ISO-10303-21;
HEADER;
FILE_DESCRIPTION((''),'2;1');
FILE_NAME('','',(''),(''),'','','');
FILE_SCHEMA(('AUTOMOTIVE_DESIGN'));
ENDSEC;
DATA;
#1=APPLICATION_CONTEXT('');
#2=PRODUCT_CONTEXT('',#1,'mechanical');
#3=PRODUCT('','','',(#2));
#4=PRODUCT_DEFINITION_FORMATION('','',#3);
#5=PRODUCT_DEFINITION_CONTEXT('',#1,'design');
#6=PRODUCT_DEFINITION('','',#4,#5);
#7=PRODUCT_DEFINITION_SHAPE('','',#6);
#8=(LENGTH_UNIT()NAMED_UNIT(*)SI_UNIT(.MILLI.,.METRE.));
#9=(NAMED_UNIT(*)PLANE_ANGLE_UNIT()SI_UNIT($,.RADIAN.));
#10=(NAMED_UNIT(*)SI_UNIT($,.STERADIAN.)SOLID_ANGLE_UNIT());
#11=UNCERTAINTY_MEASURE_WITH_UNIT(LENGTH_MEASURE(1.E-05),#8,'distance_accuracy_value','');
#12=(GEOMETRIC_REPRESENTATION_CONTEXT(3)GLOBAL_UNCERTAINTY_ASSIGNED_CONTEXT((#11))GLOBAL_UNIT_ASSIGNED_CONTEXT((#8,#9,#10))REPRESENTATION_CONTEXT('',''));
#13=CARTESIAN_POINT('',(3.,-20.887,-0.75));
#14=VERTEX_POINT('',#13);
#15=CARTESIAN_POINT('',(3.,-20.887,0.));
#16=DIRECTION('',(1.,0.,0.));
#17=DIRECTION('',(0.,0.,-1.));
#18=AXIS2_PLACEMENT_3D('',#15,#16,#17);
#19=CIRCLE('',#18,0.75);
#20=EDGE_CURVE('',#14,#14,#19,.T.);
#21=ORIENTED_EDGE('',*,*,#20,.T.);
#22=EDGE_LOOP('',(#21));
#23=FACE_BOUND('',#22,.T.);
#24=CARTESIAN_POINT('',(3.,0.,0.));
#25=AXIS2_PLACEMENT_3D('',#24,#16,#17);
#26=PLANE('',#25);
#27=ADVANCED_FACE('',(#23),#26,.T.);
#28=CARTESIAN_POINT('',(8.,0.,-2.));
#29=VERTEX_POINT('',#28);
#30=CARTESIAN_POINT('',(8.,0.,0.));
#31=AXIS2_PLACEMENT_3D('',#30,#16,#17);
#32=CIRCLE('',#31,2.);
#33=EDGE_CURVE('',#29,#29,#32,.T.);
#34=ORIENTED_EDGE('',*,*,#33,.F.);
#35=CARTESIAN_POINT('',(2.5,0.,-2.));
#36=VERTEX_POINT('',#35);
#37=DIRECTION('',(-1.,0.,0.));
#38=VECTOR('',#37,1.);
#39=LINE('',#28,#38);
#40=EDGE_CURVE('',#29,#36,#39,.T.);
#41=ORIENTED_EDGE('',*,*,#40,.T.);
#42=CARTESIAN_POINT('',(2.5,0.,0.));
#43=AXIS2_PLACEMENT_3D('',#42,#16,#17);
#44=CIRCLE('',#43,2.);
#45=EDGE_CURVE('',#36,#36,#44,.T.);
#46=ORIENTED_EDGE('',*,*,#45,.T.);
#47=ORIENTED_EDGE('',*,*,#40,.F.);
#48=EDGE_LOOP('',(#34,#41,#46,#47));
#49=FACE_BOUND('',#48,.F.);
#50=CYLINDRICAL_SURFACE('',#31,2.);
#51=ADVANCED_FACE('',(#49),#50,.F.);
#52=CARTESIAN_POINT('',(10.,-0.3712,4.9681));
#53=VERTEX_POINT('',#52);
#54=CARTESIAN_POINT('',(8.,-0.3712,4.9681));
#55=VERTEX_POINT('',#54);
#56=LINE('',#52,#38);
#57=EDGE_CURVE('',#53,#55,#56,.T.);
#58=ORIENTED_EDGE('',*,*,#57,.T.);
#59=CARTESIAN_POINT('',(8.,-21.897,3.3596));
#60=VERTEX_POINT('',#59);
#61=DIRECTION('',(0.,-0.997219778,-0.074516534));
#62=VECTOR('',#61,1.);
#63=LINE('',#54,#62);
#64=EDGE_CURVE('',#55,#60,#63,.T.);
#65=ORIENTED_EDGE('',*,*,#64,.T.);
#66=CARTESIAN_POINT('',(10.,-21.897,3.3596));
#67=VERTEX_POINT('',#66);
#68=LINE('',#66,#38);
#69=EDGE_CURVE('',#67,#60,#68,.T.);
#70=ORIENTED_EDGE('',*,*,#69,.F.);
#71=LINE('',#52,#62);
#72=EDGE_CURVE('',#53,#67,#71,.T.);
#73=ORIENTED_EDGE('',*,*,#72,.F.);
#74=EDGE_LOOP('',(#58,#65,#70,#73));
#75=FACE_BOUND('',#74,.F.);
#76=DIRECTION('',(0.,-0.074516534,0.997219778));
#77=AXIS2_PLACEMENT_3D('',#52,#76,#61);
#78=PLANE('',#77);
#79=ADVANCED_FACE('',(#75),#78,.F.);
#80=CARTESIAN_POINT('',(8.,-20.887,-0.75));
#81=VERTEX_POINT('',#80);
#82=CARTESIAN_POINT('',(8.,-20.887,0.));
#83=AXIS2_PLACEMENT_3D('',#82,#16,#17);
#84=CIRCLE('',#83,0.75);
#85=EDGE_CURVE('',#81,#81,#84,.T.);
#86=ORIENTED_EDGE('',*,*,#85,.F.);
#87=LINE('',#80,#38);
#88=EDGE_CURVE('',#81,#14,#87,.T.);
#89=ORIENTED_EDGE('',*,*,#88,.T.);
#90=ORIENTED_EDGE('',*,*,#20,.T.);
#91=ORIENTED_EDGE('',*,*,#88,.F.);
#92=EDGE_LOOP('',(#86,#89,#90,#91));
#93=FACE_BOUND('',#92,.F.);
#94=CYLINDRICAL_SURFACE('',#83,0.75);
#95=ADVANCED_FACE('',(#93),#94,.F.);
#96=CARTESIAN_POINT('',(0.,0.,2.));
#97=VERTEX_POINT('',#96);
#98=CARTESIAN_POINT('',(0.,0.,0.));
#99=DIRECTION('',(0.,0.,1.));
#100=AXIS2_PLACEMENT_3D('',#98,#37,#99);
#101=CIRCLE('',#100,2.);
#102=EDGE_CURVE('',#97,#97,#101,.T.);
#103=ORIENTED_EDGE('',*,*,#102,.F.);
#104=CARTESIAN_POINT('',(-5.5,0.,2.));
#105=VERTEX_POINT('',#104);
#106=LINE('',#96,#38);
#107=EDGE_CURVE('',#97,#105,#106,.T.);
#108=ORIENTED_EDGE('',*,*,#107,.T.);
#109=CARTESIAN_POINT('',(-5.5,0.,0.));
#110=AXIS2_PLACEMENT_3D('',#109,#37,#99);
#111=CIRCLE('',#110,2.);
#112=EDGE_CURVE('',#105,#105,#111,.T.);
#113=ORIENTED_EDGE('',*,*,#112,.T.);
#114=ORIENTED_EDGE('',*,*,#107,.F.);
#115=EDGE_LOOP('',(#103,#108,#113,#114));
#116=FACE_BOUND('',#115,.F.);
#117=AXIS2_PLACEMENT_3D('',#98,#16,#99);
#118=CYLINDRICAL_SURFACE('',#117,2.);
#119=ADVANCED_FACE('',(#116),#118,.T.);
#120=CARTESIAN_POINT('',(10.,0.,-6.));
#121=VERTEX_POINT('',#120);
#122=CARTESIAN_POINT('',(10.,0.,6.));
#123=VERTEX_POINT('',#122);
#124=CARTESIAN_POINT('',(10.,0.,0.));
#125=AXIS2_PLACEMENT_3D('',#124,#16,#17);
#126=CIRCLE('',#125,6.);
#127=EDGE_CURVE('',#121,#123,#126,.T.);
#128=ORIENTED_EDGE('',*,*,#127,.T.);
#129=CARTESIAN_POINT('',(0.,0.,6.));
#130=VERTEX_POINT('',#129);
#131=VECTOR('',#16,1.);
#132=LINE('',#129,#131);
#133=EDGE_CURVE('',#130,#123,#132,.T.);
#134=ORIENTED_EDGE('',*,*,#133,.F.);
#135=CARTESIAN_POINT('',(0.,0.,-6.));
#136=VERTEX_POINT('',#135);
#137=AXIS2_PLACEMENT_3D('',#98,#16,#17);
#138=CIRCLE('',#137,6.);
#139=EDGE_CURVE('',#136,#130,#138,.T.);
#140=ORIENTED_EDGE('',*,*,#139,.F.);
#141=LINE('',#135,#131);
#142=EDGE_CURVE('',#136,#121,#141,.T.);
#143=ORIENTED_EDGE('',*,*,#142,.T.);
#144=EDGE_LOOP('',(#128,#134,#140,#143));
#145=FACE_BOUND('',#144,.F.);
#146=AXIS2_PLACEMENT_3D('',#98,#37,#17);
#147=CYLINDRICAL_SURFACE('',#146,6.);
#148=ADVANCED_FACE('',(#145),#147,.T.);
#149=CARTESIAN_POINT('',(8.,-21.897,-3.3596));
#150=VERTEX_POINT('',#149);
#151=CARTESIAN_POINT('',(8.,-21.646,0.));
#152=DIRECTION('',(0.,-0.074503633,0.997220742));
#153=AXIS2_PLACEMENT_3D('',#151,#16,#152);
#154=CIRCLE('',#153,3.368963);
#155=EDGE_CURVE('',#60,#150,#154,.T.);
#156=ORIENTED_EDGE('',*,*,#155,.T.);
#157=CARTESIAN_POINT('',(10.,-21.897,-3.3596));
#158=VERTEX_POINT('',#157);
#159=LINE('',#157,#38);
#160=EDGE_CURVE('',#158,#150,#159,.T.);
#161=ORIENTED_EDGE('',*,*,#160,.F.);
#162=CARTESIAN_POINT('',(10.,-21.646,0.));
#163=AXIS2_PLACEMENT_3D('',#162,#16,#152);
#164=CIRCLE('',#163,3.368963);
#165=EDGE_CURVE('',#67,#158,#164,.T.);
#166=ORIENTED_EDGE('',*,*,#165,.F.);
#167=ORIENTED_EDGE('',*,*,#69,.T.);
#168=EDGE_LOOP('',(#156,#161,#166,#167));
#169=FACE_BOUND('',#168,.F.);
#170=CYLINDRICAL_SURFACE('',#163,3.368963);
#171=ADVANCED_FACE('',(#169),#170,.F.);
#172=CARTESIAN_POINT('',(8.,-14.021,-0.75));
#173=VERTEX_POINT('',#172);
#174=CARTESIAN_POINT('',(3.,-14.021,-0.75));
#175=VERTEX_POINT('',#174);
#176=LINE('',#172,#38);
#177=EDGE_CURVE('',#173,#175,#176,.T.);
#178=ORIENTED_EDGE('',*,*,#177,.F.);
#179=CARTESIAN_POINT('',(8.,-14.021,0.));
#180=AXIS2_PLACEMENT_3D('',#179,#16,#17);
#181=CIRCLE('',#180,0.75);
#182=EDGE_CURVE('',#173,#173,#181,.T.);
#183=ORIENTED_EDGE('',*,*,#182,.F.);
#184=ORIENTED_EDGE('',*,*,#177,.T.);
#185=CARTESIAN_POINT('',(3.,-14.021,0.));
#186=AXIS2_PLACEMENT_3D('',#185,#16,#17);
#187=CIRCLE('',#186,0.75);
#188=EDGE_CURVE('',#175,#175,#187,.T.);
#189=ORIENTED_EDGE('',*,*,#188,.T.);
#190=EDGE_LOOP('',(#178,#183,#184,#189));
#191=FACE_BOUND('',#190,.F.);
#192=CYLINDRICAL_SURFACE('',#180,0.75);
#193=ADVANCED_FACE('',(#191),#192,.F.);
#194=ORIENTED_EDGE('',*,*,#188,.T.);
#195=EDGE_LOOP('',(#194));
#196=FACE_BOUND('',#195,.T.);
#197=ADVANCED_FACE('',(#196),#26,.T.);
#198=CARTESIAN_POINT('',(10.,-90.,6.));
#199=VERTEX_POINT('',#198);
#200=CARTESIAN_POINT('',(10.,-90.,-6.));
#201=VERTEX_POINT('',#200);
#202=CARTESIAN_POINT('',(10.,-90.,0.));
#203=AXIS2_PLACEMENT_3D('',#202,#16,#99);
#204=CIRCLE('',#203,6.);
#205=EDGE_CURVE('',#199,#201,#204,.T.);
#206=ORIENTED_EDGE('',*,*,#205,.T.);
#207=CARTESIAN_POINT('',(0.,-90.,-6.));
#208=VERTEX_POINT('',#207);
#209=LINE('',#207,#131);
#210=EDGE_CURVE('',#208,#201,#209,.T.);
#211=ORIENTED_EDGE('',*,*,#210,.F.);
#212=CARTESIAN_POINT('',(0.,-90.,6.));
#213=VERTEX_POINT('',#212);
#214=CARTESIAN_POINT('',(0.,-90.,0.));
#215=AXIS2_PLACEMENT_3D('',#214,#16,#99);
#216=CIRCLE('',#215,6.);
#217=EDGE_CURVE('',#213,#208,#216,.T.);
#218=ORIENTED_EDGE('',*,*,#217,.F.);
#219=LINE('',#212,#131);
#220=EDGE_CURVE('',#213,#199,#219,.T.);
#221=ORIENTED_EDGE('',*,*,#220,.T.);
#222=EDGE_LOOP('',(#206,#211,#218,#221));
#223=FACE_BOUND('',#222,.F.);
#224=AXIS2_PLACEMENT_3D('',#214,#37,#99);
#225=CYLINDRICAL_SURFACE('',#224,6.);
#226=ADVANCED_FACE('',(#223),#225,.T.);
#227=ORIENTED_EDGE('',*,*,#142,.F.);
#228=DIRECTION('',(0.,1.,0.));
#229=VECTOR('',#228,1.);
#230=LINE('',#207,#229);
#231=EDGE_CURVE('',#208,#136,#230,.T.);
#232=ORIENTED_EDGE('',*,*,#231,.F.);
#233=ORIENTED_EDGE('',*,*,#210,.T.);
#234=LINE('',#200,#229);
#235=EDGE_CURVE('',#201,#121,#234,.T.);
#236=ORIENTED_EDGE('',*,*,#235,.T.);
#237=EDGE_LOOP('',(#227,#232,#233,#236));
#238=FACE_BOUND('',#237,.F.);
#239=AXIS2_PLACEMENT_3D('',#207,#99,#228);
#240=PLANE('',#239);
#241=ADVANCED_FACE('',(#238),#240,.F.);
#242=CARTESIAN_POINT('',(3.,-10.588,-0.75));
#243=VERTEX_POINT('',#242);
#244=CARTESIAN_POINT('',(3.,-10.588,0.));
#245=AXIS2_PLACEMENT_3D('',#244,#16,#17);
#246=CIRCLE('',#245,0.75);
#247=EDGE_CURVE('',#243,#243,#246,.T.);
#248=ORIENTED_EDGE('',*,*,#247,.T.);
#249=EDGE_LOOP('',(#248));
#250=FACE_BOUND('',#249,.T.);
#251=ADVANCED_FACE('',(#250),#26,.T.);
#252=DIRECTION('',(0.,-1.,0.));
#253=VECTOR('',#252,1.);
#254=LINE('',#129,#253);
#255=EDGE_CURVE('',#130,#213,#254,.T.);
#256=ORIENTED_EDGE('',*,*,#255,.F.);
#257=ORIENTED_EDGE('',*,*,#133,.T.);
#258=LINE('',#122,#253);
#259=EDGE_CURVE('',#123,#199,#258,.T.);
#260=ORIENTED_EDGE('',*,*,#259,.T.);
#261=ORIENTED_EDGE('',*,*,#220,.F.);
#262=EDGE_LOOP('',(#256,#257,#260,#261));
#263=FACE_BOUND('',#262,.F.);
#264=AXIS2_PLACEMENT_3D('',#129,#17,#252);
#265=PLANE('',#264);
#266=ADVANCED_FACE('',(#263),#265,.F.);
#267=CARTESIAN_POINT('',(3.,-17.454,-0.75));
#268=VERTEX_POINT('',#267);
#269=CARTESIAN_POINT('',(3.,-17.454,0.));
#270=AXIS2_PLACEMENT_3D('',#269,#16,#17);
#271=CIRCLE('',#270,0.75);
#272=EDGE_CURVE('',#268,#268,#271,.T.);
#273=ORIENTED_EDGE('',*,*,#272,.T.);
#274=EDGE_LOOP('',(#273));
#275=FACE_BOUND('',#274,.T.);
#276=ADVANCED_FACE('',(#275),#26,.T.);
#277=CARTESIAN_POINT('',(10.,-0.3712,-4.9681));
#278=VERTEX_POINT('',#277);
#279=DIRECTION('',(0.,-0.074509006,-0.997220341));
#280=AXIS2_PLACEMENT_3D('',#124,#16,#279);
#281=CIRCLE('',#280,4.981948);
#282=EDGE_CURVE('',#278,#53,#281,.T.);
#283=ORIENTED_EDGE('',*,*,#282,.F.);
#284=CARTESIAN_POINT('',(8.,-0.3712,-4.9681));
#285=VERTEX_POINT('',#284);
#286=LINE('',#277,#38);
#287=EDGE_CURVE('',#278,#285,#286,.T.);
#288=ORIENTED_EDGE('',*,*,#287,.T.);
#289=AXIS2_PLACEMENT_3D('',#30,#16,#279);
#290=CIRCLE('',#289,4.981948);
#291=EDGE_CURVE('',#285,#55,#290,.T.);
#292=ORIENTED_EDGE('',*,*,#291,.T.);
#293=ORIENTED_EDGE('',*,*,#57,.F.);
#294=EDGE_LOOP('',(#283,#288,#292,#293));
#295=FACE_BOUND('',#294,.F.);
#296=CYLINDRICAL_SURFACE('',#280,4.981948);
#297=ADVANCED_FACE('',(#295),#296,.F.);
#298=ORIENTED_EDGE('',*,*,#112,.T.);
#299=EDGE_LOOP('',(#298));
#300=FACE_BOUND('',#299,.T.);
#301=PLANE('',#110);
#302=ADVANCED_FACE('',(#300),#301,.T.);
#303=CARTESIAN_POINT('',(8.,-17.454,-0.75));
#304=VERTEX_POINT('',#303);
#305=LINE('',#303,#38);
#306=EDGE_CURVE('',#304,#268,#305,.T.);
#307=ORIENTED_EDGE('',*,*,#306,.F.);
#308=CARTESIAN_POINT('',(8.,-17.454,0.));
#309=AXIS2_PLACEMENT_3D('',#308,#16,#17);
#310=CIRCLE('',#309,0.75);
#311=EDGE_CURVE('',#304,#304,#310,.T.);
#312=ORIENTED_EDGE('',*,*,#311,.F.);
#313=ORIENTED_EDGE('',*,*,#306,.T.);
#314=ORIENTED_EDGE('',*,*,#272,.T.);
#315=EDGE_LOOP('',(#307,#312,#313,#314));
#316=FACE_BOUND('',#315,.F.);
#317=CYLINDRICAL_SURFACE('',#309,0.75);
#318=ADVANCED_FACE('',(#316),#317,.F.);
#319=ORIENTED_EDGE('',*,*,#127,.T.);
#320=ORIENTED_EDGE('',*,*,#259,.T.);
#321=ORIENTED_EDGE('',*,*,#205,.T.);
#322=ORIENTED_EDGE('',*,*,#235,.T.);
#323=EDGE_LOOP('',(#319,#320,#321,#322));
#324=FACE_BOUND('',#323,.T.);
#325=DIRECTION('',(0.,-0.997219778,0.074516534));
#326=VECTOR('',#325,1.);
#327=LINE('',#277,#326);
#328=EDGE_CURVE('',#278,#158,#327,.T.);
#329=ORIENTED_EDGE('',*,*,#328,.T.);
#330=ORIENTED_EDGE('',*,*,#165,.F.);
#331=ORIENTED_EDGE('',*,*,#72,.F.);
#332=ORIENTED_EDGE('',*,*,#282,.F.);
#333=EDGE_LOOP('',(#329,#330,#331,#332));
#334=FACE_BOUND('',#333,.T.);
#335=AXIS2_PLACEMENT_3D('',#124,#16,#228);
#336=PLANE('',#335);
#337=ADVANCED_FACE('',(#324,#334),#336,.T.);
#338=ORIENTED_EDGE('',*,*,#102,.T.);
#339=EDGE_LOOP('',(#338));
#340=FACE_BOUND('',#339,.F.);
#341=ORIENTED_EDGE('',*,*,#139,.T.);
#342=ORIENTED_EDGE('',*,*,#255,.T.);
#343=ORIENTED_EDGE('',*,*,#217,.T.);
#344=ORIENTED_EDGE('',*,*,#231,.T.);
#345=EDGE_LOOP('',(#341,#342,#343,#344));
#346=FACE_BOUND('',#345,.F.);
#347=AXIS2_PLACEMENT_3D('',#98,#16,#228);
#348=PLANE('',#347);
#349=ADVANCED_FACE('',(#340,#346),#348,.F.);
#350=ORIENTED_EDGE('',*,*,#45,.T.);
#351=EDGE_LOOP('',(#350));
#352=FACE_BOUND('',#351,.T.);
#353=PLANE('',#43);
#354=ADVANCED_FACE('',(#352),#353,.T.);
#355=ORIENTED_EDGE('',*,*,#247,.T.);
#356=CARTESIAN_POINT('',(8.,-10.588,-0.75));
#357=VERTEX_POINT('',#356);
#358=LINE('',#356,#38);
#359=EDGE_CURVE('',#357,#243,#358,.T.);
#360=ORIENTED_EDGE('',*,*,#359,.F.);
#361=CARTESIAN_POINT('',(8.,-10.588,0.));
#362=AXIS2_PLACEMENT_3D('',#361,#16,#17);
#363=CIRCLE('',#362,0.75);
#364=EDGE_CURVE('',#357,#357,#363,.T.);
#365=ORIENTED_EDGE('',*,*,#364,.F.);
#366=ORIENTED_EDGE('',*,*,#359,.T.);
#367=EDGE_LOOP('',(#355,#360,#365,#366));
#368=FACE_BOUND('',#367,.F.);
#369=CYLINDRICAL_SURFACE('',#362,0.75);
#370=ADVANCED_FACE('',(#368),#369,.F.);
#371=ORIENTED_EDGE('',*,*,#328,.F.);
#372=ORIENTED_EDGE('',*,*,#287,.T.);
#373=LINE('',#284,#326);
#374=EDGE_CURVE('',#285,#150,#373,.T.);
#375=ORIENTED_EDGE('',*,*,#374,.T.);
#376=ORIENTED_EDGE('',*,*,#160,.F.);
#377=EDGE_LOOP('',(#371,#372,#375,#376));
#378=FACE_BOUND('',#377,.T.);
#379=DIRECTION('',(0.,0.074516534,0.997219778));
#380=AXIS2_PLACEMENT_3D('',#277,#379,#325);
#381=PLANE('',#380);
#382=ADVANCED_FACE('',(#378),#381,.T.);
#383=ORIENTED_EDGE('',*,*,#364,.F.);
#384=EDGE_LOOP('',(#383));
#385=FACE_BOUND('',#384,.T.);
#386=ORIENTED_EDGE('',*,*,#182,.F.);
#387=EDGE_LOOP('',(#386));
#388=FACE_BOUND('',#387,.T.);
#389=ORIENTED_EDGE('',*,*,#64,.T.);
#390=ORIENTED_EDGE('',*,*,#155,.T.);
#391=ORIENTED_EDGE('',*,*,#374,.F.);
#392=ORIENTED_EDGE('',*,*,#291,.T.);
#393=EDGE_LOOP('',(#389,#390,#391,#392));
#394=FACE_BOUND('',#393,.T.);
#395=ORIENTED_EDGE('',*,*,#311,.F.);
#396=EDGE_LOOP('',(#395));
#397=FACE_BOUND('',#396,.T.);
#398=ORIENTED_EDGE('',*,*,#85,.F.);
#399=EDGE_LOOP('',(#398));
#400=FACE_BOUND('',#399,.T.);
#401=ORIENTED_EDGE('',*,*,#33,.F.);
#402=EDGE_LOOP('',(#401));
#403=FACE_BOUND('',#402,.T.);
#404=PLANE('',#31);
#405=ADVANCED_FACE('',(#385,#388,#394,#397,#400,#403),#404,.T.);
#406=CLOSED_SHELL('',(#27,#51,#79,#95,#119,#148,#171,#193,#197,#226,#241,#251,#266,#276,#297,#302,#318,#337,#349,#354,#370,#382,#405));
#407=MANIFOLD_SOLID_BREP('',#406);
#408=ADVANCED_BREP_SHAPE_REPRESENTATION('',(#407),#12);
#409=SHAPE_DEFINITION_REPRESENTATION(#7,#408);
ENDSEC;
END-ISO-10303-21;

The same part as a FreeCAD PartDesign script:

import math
import FreeCAD as App
import Part
import Sketcher
from FreeCAD import Vector

doc = App.newDocument("Part")
body = doc.addObject("PartDesign::Body", "Body")

# Sketch on YZ plane
sketch1 = body.newObject("Sketcher::SketchObject", "Sketch")
sketch1.AttachmentSupport = (doc.getObject("YZ_Plane"), [""])
sketch1.MapMode = "FlatFace"
sketch1.addGeometry(Part.LineSegment(Vector(-90, -6, 0), Vector(0, -6, 0)), False)
sketch1.addGeometry(Part.ArcOfCircle(Part.Circle(Vector(0, 0, 0), Vector(0, 0, 1), 6), math.radians(-90), math.radians(90)), False)
sketch1.addGeometry(Part.LineSegment(Vector(0, 6, 0), Vector(-90, 6, 0)), False)
sketch1.addGeometry(Part.ArcOfCircle(Part.Circle(Vector(-90, 0, 0), Vector(0, 0, 1), 6), math.radians(90), math.radians(270)), False)
sketch1.addConstraint(Sketcher.Constraint("Tangent", 0, 2, 1, 1))
sketch1.addConstraint(Sketcher.Constraint("Tangent", 1, 2, 2, 1))
sketch1.addConstraint(Sketcher.Constraint("Tangent", 2, 2, 3, 1))
sketch1.addConstraint(Sketcher.Constraint("Tangent", 3, 2, 0, 1))
sketch1.addConstraint(Sketcher.Constraint("Horizontal", 0))
sketch1.addConstraint(Sketcher.Constraint("Horizontal", 2))
sketch1.addConstraint(Sketcher.Constraint("Coincident", 1, 3, -1, 1))
sketch1.addConstraint(Sketcher.Constraint("Radius", 1, 6.0))
sketch1.addConstraint(Sketcher.Constraint("DistanceX", 0, 1, 0, 2, 90.0))
pad1 = body.newObject("PartDesign::Pad", "Pad")
pad1.Profile = sketch1
pad1.Length = 10

# Sketch on YZ plane
sketch2 = body.newObject("Sketcher::SketchObject", "Sketch001")
sketch2.AttachmentSupport = (doc.getObject("YZ_Plane"), [""])
sketch2.MapMode = "FlatFace"
sketch2.AttachmentOffset = App.Placement(Vector(0, 0, 10), App.Rotation())
sketch2.addGeometry(Part.LineSegment(Vector(-21.9, -3.4, 0), Vector(-0.4, -5, 0)), False)
sketch2.addGeometry(Part.ArcOfCircle(Part.Circle(Vector(0, 0, 0), Vector(0, 0, 1), 5), math.radians(-94), math.radians(94)), False)
sketch2.addGeometry(Part.LineSegment(Vector(-0.4, 5, 0), Vector(-21.9, 3.4, 0)), False)
sketch2.addGeometry(Part.ArcOfCircle(Part.Circle(Vector(-21.6, 0, 0), Vector(0, 0, 1), 3.4), math.radians(94), math.radians(266)), False)
sketch2.addConstraint(Sketcher.Constraint("Tangent", 0, 2, 1, 1))
sketch2.addConstraint(Sketcher.Constraint("Tangent", 1, 2, 2, 1))
sketch2.addConstraint(Sketcher.Constraint("Tangent", 2, 2, 3, 1))
sketch2.addConstraint(Sketcher.Constraint("Tangent", 3, 2, 0, 1))
sketch2.addConstraint(Sketcher.Constraint("Coincident", 1, 3, -1, 1))
sketch2.addConstraint(Sketcher.Constraint("PointOnObject", 3, 3, -1))
sketch2.addConstraint(Sketcher.Constraint("Radius", 1, 4.982))
sketch2.addConstraint(Sketcher.Constraint("Radius", 3, 3.369))
sketch2.addConstraint(Sketcher.Constraint("DistanceX", 3, 3, -1, 1, 21.646))
pocket1 = body.newObject("PartDesign::Pocket", "Pocket")
pocket1.Profile = sketch2
pocket1.Length = 2

# Sketch on YZ plane
sketch3 = body.newObject("Sketcher::SketchObject", "Sketch002")
sketch3.AttachmentSupport = (doc.getObject("YZ_Plane"), [""])
sketch3.MapMode = "FlatFace"
sketch3.AttachmentOffset = App.Placement(Vector(0, 0, 8), App.Rotation())
sketch3.addGeometry(Part.Circle(Vector(-10.6, 0, 0), Vector(0, 0, 1), 0.8), False)
sketch3.addGeometry(Part.Circle(Vector(-14, 0, 0), Vector(0, 0, 1), 0.8), False)
sketch3.addGeometry(Part.Circle(Vector(-17.5, 0, 0), Vector(0, 0, 1), 0.8), False)
sketch3.addGeometry(Part.Circle(Vector(-20.9, 0, 0), Vector(0, 0, 1), 0.8), False)
sketch3.addConstraint(Sketcher.Constraint("Equal", 0, 1))
sketch3.addConstraint(Sketcher.Constraint("Equal", 1, 2))
sketch3.addConstraint(Sketcher.Constraint("Equal", 2, 3))
sketch3.addConstraint(Sketcher.Constraint("PointOnObject", 0, 3, -1))
sketch3.addConstraint(Sketcher.Constraint("PointOnObject", 1, 3, -1))
sketch3.addConstraint(Sketcher.Constraint("PointOnObject", 2, 3, -1))
sketch3.addConstraint(Sketcher.Constraint("PointOnObject", 3, 3, -1))
sketch3.addConstraint(Sketcher.Constraint("Diameter", 0, 1.5))
sketch3.addConstraint(Sketcher.Constraint("DistanceX", 0, 3, -1, 1, 10.588))
sketch3.addConstraint(Sketcher.Constraint("DistanceX", 1, 3, 0, 3, 3.433))
sketch3.addConstraint(Sketcher.Constraint("DistanceX", 2, 3, 1, 3, 3.433))
sketch3.addConstraint(Sketcher.Constraint("DistanceX", 3, 3, 2, 3, 3.433))
pocket2 = body.newObject("PartDesign::Pocket", "Pocket001")
pocket2.Profile = sketch3
pocket2.Length = 5

# Sketch on YZ plane
sketch4 = body.newObject("Sketcher::SketchObject", "Sketch003")
sketch4.AttachmentSupport = (doc.getObject("YZ_Plane"), [""])
sketch4.MapMode = "FlatFace"
sketch4.AttachmentOffset = App.Placement(Vector(0, 0, 8), App.Rotation())
sketch4.addGeometry(Part.Circle(Vector(0, 0, 0), Vector(0, 0, 1), 2), False)
sketch4.addConstraint(Sketcher.Constraint("Coincident", 0, 3, -1, 1))
sketch4.addConstraint(Sketcher.Constraint("Diameter", 0, 4.0))
pocket3 = body.newObject("PartDesign::Pocket", "Pocket002")
pocket3.Profile = sketch4
pocket3.Length = 5.5

# Sketch on YZ plane
sketch5 = body.newObject("Sketcher::SketchObject", "Sketch004")
sketch5.AttachmentSupport = (doc.getObject("YZ_Plane"), [""])
sketch5.MapMode = "FlatFace"
sketch5.addGeometry(Part.Circle(Vector(0, 0, 0), Vector(0, 0, 1), 2), False)
sketch5.addConstraint(Sketcher.Constraint("Coincident", 0, 3, -1, 1))
sketch5.addConstraint(Sketcher.Constraint("Diameter", 0, 4.0))
pad2 = body.newObject("PartDesign::Pad", "Pad001")
pad2.Profile = sketch5
pad2.Length = 5.5
pad2.Reversed = True

doc.recompute()
